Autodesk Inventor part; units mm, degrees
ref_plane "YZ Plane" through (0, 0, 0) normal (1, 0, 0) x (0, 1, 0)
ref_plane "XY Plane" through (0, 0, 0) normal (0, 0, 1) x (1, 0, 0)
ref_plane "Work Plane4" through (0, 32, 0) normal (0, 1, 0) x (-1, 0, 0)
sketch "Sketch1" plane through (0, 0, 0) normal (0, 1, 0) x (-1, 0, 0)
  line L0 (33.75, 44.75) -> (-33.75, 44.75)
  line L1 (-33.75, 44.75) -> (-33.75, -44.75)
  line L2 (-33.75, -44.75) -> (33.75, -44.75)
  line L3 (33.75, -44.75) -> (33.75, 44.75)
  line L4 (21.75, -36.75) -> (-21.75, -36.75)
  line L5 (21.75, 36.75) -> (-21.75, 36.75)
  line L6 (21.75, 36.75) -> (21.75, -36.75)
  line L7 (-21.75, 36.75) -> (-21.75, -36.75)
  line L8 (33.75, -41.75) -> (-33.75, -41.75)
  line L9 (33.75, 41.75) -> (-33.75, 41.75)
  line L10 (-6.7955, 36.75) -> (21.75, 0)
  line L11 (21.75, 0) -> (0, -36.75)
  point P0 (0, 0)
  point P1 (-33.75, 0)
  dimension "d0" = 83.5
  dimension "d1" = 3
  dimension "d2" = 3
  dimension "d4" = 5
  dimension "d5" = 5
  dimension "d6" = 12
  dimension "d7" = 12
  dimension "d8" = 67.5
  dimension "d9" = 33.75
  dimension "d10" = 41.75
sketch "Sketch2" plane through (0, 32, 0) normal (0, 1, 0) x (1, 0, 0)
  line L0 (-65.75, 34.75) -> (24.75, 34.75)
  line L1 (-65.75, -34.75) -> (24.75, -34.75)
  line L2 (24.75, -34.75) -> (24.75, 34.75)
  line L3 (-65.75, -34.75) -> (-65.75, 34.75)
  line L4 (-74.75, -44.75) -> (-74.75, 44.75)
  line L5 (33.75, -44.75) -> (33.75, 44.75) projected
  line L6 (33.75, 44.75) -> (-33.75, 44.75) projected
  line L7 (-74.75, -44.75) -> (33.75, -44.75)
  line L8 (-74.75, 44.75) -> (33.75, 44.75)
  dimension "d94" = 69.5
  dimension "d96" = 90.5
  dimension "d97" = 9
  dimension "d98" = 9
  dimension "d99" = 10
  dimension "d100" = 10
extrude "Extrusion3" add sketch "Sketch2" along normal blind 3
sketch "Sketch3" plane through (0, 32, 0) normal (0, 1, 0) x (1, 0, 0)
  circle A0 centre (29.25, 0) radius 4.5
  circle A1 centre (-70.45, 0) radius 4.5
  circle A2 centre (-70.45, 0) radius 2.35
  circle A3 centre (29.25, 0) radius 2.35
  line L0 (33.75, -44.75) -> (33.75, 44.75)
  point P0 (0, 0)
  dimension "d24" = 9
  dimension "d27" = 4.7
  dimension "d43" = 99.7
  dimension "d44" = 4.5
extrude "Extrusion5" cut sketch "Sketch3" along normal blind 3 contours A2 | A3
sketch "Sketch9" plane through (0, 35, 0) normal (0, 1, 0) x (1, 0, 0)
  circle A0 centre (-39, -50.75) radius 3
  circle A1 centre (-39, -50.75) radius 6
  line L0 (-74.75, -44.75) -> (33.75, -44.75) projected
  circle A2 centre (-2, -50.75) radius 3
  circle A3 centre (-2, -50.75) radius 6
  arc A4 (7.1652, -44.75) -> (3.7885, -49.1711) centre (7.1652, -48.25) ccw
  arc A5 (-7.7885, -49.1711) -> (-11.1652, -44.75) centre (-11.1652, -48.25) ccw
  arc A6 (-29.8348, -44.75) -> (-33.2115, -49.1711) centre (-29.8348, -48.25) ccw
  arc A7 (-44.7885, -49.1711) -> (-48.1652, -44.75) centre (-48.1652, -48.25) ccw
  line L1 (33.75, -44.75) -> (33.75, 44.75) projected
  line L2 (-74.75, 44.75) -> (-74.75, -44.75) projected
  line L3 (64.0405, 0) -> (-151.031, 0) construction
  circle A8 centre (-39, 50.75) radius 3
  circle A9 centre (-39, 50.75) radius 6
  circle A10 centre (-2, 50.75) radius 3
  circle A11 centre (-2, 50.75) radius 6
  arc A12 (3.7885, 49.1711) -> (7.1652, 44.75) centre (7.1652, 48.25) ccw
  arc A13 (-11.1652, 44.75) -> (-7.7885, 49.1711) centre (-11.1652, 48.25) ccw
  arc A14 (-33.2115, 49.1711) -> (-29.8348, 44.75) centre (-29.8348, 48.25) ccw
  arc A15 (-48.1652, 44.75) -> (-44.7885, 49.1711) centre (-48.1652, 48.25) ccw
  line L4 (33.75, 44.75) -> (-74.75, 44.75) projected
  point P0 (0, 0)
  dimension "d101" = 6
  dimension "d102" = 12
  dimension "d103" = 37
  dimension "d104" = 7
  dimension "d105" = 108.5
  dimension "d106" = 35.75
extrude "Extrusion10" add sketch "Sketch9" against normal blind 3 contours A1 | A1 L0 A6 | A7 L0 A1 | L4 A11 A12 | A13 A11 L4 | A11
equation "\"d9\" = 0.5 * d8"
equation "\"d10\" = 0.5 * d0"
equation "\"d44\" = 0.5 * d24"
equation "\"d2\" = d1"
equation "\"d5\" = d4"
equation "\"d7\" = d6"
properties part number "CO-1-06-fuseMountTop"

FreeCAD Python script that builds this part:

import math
import FreeCAD as App
import Part
import Sketcher
from FreeCAD import Vector
Q = App.Units.Quantity

doc = App.newDocument("Part")
params = doc.addObject("Spreadsheet::Sheet", "Params")
for row, (alias, value) in enumerate([
    ("sketch1_width", "90.5 mm"),
    ("sketch1_height", "69.5 mm"),
    ("pad1_length", "3 mm"),
    ("sketch2_diameter", "4.7 mm"),
    ("pocket1_length", "3 mm"),
    ("sketch3_diameter", "6 mm"),
    ("sketch3_radius", "6 mm"),
    ("sketch3_radius2", "3.5 mm"),
    ("pad2_length", "3 mm"),
], start=1):
    params.set(f"A{row}", alias)
    params.set(f"B{row}", "=" + value)
    params.setAlias(f"B{row}", alias)

body = doc.addObject("PartDesign::Body", "Body")

sketch1 = doc.addObject("Sketcher::SketchObject", "Sketch")
body.addObject(sketch1)
sketch1.AttachmentSupport = (doc.XZ_Plane, [""])
sketch1.MapMode = "FlatFace"
sketch1.AttachmentOffset = App.Placement(Vector(0, 0, -32), App.Rotation())
sketch1.addGeometry([
    Part.LineSegment(Vector(-75, -45, 0), Vector(-75, 45, 0)),
    Part.LineSegment(Vector(-75, 45, 0), Vector(34, 45, 0)),
    Part.LineSegment(Vector(34, 45, 0), Vector(34, -45, 0)),
    Part.LineSegment(Vector(34, -45, 0), Vector(-75, -45, 0)),
    Part.LineSegment(Vector(-66, 35, 0), Vector(-66, -35, 0)),
    Part.LineSegment(Vector(-66, -35, 0), Vector(25, -35, 0)),
    Part.LineSegment(Vector(25, -35, 0), Vector(25, 35, 0)),
    Part.LineSegment(Vector(25, 35, 0), Vector(-66, 35, 0)),
], False)
sketch1.addConstraint([
    Sketcher.Constraint("Coincident", 0, 2, 1, 1),
    Sketcher.Constraint("Coincident", 1, 2, 2, 1),
    Sketcher.Constraint("Coincident", 2, 2, 3, 1),
    Sketcher.Constraint("Coincident", 3, 2, 0, 1),
    Sketcher.Constraint("Coincident", 4, 2, 5, 1),
    Sketcher.Constraint("Coincident", 5, 2, 6, 1),
    Sketcher.Constraint("Coincident", 6, 2, 7, 1),
    Sketcher.Constraint("Coincident", 7, 2, 4, 1),
    Sketcher.Constraint("Vertical", 0),
    Sketcher.Constraint("Horizontal", 1),
    Sketcher.Constraint("Vertical", 2),
    Sketcher.Constraint("Horizontal", 3),
    Sketcher.Constraint("Vertical", 4),
    Sketcher.Constraint("Horizontal", 5),
    Sketcher.Constraint("Vertical", 6),
    Sketcher.Constraint("Horizontal", 7),
    Sketcher.Constraint("DistanceX", 5, 1, 5, 2, Q("90.5 mm")),
    Sketcher.Constraint("DistanceY", 4, 2, 4, 1, Q("69.5 mm")),
    Sketcher.Constraint("DistanceX", 3, 2, 4, 2, Q("9 mm")),
    Sketcher.Constraint("DistanceY", 3, 2, 4, 2, Q("10 mm")),
    Sketcher.Constraint("DistanceX", 5, 2, 2, 2, Q("9 mm")),
    Sketcher.Constraint("DistanceY", 6, 2, 1, 2, Q("10 mm")),
    Sketcher.Constraint("DistanceX", 0, 2, -1, 1, Q("74.75 mm")),
    Sketcher.Constraint("DistanceY", -1, 1, 0, 2, Q("44.75 mm")),
])
sketch1.setExpression("Constraints[16]", "Params.sketch1_width")
sketch1.setExpression("Constraints[17]", "Params.sketch1_height")
pad1 = doc.addObject("PartDesign::Pad", "Pad")
body.addObject(pad1)
pad1.Profile = sketch1
pad1.setExpression("Length", "Params.pad1_length")
pad1.Reversed = True

sketch2 = doc.addObject("Sketcher::SketchObject", "Sketch001")
body.addObject(sketch2)
sketch2.AttachmentSupport = (doc.XZ_Plane, [""])
sketch2.MapMode = "FlatFace"
sketch2.AttachmentOffset = App.Placement(Vector(0, 0, -32), App.Rotation())
sketch2.addGeometry([
    Part.Circle(Vector(-70.5, 0, 0), Vector(0, 0, 1), 2.4),
    Part.Circle(Vector(29.2, 0, 0), Vector(0, 0, 1), 2.4),
], False)
sketch2.addConstraint([
    Sketcher.Constraint("Equal", 0, 1),
    Sketcher.Constraint("PointOnObject", 0, 3, -1),
    Sketcher.Constraint("PointOnObject", 1, 3, -1),
    Sketcher.Constraint("Diameter", 0, Q("4.7 mm")),
    Sketcher.Constraint("DistanceX", 0, 3, 1, 3, Q("99.7 mm")),
    Sketcher.Constraint("DistanceX", 0, 3, -1, 1, Q("70.45 mm")),
])
sketch2.setExpression("Constraints[3]", "Params.sketch2_diameter")
pocket1 = doc.addObject("PartDesign::Pocket", "Pocket")
body.addObject(pocket1)
pocket1.Profile = sketch2
pocket1.setExpression("Length", "Params.pocket1_length")

sketch3 = doc.addObject("Sketcher::SketchObject", "Sketch002")
body.addObject(sketch3)
sketch3.AttachmentSupport = (doc.XZ_Plane, [""])
sketch3.MapMode = "FlatFace"
sketch3.AttachmentOffset = App.Placement(Vector(0, 0, -35), App.Rotation())
sketch3.addGeometry([
    Part.ArcOfCircle(Part.Circle(Vector(-39, 50.8, 0), Vector(0, 0, 1), 6), math.radians(-15), math.radians(195)),
    Part.ArcOfCircle(Part.Circle(Vector(-29.8, 48.2, 0), Vector(0, 0, 1), 3.5), math.radians(165), math.radians(270)),
    Part.LineSegment(Vector(-29.8, 44.8, 0), Vector(-48.2, 44.8, 0)),
    Part.ArcOfCircle(Part.Circle(Vector(-48.2, 48.2, 0), Vector(0, 0, 1), 3.5), math.radians(-90), math.radians(15)),
    Part.Circle(Vector(-39, 50.8, 0), Vector(0, 0, 1), 3),
    Part.ArcOfCircle(Part.Circle(Vector(7.2, -48.2, 0), Vector(0, 0, 1), 3.5), math.radians(90), math.radians(195)),
    Part.ArcOfCircle(Part.Circle(Vector(-2, -50.8, 0), Vector(0, 0, 1), 6), math.radians(165), math.radians(375)),
    Part.ArcOfCircle(Part.Circle(Vector(-11.2, -48.2, 0), Vector(0, 0, 1), 3.5), math.radians(-15), math.radians(90)),
    Part.LineSegment(Vector(-11.2, -44.8, 0), Vector(7.2, -44.8, 0)),
    Part.Circle(Vector(-2, -50.8, 0), Vector(0, 0, 1), 3),
], False)
sketch3.addConstraint([
    Sketcher.Constraint("Tangent", 0, 1, 1, 1),
    Sketcher.Constraint("Tangent", 1, 2, 2, 1),
    Sketcher.Constraint("Tangent", 2, 2, 3, 1),
    Sketcher.Constraint("Tangent", 3, 2, 0, 2),
    Sketcher.Constraint("Tangent", 5, 2, 6, 2),
    Sketcher.Constraint("Tangent", 6, 1, 7, 1),
    Sketcher.Constraint("Tangent", 7, 2, 8, 1),
    Sketcher.Constraint("Tangent", 8, 2, 5, 1),
    Sketcher.Constraint("Horizontal", 2),
    Sketcher.Constraint("Horizontal", 8),
    Sketcher.Constraint("Coincident", 4, 3, 0, 3),
    Sketcher.Constraint("Coincident", 9, 3, 6, 3),
    Sketcher.Constraint("Equal", 1, 3),
    Sketcher.Constraint("Equal", 3, 5),
    Sketcher.Constraint("Equal", 0, 6),
    Sketcher.Constraint("Equal", 5, 7),
    Sketcher.Constraint("Equal", 4, 9),
    Sketcher.Constraint("Equal", 2, 8),
    Sketcher.Constraint("Diameter", 4, Q("6 mm")),
    Sketcher.Constraint("Radius", 0, Q("6 mm")),
    Sketcher.Constraint("Radius", 1, Q("3.5 mm")),
    Sketcher.Constraint("DistanceX", 1, 3, 5, 3, Q("37 mm")),
    Sketcher.Constraint("DistanceY", 1, 2, 0, 3, Q("6 mm")),
    Sketcher.Constraint("DistanceX", 0, 3, -1, 1, Q("39 mm")),
    Sketcher.Constraint("DistanceY", 5, 3, 0, 3, Q("99 mm")),
    Sketcher.Constraint("DistanceY", -1, 1, 0, 3, Q("50.75 mm")),
])
sketch3.setExpression("Constraints[18]", "Params.sketch3_diameter")
sketch3.setExpression("Constraints[19]", "Params.sketch3_radius")
sketch3.setExpression("Constraints[20]", "Params.sketch3_radius2")
pad2 = doc.addObject("PartDesign::Pad", "Pad001")
body.addObject(pad2)
pad2.Profile = sketch3
pad2.setExpression("Length", "Params.pad2_length")

doc.recompute()
